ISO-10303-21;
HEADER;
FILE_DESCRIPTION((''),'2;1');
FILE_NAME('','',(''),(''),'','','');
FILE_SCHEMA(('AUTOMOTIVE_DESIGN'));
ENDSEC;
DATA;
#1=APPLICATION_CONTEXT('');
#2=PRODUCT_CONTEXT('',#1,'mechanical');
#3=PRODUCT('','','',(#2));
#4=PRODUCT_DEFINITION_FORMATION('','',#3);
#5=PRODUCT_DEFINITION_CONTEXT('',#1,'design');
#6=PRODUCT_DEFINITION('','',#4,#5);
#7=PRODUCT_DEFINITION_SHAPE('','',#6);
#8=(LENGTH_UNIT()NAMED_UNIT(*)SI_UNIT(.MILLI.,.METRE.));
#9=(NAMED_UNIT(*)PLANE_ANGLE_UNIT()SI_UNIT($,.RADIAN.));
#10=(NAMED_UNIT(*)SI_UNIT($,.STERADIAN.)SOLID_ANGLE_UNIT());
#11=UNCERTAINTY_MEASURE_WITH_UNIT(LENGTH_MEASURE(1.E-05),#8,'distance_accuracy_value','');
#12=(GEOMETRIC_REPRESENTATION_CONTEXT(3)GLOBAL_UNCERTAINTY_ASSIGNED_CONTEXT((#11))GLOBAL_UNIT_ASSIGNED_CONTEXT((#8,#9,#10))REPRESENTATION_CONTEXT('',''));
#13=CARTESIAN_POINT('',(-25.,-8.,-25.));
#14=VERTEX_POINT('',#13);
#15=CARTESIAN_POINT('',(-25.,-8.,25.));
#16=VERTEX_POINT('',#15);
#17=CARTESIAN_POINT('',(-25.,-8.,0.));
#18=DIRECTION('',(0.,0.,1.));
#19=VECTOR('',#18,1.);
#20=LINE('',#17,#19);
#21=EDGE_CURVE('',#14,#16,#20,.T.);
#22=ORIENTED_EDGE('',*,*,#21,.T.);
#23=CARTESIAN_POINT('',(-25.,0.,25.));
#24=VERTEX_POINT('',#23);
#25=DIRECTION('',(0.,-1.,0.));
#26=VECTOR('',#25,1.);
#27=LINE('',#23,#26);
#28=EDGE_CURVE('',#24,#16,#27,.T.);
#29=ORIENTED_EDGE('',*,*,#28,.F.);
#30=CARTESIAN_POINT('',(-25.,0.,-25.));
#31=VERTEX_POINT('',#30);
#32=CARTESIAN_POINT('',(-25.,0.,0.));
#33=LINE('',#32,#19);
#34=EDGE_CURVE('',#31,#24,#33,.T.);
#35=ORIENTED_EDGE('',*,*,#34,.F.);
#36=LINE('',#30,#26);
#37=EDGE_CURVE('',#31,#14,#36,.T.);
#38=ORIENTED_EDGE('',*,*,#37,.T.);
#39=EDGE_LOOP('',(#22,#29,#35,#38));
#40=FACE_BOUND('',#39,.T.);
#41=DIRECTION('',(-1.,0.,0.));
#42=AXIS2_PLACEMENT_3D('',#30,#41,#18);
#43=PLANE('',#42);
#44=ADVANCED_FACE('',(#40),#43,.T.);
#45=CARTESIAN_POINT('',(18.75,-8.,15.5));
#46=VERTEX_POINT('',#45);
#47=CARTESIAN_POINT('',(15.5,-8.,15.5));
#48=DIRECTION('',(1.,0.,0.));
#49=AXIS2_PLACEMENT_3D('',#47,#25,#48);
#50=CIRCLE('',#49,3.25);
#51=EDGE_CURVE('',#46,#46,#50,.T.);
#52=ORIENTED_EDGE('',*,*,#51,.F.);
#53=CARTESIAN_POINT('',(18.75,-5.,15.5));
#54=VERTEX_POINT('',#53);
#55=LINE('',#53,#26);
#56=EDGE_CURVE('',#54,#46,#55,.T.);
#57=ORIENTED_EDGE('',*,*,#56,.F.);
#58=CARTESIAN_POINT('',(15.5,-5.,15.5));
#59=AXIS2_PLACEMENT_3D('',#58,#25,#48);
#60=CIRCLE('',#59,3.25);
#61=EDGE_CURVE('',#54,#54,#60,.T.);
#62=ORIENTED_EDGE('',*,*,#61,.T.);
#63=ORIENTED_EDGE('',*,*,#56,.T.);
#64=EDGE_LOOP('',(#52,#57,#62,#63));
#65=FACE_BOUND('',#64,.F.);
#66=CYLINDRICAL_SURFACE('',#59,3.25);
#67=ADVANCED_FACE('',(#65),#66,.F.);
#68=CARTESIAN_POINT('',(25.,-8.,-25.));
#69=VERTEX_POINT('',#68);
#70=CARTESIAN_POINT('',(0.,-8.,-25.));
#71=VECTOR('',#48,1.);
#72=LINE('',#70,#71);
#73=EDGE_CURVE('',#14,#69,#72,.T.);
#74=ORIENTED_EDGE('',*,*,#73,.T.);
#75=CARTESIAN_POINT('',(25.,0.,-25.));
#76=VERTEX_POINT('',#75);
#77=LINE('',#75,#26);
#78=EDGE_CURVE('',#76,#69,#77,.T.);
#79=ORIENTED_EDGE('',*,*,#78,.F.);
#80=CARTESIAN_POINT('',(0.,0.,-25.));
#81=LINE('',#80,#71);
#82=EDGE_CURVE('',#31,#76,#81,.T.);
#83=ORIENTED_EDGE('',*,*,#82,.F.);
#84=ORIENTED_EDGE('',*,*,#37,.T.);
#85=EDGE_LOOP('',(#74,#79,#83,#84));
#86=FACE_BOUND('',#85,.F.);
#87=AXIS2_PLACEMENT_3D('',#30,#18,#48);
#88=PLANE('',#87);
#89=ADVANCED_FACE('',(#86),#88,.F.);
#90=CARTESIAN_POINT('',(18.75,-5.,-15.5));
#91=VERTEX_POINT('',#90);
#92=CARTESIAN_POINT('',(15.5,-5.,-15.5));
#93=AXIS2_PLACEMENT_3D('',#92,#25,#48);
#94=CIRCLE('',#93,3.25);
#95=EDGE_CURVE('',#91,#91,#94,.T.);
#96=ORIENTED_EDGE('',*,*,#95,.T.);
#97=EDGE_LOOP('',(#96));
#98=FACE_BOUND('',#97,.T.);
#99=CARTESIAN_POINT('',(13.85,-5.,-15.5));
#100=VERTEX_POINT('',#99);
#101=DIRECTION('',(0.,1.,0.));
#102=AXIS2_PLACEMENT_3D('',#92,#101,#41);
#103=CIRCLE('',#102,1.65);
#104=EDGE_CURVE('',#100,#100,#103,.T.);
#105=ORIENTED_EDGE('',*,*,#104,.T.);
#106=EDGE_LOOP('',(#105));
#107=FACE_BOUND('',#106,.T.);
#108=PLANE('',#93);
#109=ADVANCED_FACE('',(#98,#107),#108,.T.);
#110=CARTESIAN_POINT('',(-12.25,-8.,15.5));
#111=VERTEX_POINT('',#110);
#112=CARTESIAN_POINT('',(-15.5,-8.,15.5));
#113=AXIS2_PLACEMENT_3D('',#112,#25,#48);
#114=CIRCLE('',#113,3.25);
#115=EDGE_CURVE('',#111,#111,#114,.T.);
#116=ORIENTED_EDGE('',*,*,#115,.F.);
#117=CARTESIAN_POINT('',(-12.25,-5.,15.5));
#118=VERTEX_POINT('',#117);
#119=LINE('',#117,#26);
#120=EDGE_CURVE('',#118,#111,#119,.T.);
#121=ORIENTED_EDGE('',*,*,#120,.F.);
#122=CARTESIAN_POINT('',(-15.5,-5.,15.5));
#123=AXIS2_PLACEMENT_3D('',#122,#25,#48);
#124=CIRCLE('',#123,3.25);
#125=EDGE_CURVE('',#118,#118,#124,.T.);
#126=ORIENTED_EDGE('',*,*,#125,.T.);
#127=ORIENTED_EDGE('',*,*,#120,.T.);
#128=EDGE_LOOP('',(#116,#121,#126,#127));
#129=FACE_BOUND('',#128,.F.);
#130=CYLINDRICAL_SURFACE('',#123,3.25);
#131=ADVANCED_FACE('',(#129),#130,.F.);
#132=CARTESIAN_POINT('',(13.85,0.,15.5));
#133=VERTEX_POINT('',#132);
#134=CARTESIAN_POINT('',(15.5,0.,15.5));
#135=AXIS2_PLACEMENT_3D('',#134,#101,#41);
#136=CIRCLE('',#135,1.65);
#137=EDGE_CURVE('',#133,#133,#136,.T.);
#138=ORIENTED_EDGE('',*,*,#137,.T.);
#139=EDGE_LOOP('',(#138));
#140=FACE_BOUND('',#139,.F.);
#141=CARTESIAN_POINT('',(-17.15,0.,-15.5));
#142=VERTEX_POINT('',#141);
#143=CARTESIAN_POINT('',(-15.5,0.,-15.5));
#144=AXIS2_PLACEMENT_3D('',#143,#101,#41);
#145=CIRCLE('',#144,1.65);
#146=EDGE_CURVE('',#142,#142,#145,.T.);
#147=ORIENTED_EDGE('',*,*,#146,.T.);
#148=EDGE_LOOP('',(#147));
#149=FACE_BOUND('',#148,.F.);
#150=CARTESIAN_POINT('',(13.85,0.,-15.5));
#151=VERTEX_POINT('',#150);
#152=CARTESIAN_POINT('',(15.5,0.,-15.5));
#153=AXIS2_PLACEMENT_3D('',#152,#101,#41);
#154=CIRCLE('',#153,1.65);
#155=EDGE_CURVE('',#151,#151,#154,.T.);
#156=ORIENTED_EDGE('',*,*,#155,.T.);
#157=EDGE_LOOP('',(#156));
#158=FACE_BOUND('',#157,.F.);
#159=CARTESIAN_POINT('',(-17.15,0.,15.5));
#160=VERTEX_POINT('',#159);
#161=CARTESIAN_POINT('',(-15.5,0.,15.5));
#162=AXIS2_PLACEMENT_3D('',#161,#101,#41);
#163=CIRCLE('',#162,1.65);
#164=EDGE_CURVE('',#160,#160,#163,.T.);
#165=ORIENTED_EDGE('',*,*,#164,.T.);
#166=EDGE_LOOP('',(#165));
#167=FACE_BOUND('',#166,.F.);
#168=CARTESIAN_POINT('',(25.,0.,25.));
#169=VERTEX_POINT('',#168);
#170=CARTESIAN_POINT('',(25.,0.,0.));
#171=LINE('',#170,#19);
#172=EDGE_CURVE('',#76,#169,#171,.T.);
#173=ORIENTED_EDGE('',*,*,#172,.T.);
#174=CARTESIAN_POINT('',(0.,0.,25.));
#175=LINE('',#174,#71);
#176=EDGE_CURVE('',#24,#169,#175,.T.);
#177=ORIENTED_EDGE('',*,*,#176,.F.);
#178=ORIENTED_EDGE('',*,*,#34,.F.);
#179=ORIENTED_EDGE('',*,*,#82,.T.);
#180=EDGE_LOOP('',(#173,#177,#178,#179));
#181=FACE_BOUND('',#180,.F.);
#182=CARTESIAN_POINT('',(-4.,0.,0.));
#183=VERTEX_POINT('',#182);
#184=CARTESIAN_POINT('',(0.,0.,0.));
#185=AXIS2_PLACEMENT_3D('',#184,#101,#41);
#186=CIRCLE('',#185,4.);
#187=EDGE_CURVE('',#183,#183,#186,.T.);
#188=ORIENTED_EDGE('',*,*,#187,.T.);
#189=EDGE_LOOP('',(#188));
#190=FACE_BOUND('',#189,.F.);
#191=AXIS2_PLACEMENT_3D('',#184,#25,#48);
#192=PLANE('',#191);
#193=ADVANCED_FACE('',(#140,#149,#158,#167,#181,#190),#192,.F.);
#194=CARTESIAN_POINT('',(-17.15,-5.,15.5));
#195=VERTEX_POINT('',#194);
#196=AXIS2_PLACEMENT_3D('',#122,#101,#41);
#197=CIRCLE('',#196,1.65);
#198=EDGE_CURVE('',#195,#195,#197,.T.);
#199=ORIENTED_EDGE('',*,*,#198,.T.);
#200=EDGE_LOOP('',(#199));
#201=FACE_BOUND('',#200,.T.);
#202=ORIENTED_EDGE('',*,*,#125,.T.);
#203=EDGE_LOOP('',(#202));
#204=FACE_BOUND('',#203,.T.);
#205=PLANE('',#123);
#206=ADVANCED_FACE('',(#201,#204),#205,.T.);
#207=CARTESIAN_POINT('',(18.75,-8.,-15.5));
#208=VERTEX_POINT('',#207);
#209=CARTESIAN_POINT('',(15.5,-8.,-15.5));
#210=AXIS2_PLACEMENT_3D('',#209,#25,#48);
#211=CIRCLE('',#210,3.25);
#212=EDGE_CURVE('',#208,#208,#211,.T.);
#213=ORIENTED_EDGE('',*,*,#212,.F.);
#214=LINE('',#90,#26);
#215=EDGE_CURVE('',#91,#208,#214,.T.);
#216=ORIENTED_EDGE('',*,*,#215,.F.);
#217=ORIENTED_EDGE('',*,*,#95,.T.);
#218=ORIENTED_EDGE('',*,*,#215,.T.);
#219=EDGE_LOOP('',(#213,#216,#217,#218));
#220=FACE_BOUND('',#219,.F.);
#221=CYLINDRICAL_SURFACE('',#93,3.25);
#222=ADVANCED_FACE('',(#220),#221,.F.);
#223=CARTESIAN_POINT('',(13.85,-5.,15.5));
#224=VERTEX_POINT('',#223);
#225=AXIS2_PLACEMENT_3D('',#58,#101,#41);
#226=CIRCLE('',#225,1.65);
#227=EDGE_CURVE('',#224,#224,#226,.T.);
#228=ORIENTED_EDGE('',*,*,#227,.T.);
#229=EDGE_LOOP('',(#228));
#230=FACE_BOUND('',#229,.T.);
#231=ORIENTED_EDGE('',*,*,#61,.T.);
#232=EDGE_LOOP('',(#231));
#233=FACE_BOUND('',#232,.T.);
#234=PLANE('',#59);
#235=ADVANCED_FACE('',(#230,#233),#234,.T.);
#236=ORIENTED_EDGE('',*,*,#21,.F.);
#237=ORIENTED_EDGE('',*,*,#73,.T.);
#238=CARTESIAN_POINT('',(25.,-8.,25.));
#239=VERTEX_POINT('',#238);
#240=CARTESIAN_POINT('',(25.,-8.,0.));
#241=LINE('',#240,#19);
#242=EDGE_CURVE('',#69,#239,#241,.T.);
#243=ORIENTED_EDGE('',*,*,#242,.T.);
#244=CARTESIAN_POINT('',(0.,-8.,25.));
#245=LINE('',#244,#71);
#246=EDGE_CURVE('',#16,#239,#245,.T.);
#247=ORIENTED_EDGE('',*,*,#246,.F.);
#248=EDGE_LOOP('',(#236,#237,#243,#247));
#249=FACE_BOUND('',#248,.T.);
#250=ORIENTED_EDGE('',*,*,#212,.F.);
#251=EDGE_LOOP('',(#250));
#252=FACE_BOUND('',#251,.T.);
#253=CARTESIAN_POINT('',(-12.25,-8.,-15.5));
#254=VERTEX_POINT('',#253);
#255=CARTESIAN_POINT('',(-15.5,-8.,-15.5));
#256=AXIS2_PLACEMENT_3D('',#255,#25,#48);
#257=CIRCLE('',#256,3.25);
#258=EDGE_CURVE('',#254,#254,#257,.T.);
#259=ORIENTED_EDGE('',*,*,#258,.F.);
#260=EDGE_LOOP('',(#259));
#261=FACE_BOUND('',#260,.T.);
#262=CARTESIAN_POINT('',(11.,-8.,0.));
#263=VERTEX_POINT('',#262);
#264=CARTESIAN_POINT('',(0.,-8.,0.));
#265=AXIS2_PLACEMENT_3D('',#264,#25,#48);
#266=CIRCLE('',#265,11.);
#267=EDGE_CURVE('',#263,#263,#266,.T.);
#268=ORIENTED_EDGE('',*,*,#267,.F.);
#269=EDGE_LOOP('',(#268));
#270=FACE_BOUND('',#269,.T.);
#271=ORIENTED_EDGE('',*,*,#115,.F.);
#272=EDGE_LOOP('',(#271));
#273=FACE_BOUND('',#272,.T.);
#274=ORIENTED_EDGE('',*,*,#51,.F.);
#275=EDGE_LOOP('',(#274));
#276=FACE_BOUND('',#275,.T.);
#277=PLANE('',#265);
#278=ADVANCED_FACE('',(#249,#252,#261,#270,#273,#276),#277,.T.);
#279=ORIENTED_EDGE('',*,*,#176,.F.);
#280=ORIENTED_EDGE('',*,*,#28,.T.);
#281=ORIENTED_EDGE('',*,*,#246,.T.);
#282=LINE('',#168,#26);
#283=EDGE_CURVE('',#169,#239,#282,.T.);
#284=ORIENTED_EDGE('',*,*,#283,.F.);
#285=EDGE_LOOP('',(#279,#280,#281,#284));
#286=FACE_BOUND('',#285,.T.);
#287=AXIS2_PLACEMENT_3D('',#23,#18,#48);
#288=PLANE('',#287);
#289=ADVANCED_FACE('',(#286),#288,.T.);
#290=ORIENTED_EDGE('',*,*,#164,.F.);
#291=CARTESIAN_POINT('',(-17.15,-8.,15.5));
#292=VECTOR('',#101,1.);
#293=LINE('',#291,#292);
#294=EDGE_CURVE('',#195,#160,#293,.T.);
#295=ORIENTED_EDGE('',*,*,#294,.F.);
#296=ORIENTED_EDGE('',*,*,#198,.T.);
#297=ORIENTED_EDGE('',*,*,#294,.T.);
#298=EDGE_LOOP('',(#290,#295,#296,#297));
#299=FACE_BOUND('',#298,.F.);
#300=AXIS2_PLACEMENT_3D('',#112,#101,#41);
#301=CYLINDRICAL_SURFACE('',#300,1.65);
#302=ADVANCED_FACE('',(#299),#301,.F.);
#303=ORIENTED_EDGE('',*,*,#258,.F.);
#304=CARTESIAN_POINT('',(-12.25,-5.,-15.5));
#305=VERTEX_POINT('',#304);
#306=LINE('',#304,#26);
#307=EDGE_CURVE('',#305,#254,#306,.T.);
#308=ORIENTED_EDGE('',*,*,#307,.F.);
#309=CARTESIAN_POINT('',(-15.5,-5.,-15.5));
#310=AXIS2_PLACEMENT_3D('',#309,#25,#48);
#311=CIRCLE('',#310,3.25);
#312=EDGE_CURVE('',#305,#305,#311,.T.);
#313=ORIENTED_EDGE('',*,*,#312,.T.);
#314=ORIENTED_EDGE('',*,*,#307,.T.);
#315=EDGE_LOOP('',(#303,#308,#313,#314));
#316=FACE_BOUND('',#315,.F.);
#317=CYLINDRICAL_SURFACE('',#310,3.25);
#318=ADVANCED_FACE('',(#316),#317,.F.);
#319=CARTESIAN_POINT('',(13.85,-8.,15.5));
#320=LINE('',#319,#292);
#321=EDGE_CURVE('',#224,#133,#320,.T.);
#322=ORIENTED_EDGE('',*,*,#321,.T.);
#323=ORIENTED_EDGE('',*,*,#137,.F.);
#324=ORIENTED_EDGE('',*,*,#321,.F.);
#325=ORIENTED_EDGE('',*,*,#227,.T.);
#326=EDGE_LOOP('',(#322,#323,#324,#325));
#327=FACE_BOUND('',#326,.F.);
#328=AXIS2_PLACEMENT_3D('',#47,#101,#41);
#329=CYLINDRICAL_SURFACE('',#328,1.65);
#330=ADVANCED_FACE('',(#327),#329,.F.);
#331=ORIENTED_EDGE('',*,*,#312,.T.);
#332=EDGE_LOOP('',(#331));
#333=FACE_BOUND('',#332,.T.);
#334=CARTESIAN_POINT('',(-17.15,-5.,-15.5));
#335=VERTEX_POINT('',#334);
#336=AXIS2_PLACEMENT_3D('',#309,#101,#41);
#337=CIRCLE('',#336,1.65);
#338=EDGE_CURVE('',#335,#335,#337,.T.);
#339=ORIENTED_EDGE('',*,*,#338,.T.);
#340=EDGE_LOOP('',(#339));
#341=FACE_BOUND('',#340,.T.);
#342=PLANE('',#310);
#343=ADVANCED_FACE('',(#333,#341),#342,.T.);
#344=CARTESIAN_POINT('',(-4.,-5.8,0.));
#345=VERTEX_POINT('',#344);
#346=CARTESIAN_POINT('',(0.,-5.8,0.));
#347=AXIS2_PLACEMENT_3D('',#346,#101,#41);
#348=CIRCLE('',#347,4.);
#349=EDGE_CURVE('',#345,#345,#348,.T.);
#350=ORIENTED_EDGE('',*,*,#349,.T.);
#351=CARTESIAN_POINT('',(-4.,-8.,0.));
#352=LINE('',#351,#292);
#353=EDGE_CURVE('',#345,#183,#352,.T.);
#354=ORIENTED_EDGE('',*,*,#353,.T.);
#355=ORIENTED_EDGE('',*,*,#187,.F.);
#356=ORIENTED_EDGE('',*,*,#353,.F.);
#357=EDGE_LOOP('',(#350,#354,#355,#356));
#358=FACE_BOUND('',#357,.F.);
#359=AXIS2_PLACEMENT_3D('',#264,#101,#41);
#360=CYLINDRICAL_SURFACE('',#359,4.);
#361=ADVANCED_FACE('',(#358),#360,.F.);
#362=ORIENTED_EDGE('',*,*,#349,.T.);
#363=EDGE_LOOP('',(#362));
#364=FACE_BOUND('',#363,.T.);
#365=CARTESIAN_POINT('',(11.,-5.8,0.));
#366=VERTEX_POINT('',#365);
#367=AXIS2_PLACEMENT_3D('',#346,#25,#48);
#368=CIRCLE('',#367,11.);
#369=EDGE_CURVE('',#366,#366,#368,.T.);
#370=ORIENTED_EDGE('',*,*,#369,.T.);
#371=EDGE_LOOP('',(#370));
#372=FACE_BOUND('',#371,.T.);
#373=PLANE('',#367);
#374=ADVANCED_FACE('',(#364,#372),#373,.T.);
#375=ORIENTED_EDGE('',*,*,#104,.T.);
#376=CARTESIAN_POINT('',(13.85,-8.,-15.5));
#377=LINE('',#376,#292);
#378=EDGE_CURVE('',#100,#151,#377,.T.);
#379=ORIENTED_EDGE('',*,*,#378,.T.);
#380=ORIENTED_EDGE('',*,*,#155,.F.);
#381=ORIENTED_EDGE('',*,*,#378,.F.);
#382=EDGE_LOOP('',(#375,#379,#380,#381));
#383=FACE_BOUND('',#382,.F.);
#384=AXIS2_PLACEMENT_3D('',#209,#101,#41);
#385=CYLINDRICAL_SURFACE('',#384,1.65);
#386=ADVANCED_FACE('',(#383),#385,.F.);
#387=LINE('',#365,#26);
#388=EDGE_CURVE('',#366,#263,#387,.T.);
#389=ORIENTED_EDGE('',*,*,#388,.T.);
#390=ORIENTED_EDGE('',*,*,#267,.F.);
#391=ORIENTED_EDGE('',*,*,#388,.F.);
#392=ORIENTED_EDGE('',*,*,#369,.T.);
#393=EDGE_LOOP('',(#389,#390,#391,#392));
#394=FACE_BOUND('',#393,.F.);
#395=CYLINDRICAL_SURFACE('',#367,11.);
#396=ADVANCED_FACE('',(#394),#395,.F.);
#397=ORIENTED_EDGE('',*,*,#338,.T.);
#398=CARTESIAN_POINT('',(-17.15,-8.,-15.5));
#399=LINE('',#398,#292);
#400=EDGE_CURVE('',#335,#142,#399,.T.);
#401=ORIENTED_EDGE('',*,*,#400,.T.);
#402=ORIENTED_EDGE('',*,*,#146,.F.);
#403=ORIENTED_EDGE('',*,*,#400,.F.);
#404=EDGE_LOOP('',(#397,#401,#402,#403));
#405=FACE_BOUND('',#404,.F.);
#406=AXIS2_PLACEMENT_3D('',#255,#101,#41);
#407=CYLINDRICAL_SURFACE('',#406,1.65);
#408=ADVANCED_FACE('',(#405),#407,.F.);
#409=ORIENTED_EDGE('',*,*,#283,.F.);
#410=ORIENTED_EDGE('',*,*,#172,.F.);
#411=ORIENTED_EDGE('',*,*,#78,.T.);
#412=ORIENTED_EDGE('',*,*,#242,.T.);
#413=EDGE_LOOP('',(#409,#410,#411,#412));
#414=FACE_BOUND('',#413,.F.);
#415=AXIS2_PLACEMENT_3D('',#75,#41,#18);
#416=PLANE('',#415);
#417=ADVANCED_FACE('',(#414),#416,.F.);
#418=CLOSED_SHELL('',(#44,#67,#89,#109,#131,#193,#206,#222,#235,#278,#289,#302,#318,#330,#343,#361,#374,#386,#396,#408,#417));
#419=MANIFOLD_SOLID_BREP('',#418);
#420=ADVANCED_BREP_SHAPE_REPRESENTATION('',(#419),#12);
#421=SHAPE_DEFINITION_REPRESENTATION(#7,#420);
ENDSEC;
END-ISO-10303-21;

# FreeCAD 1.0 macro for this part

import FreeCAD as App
import Part
import Sketcher
from FreeCAD import Vector
Q = App.Units.Quantity

doc = App.newDocument("Part")
body = doc.addObject("PartDesign::Body", "Body")

sketch1 = body.newObject("Sketcher::SketchObject", "Sketch")
sketch1.AttachmentSupport = (doc.getObject("XZ_Plane"), [""])
sketch1.MapMode = "FlatFace"
sketch1.addGeometry([
    Part.LineSegment(Vector(-25, 25, 0), Vector(-25, -25, 0)),
    Part.LineSegment(Vector(-25, -25, 0), Vector(25, -25, 0)),
    Part.LineSegment(Vector(25, -25, 0), Vector(25, 25, 0)),
    Part.LineSegment(Vector(25, 25, 0), Vector(-25, 25, 0)),
], False)
sketch1.addConstraint([
    Sketcher.Constraint("Coincident", 0, 2, 1, 1),
    Sketcher.Constraint("Coincident", 1, 2, 2, 1),
    Sketcher.Constraint("Coincident", 2, 2, 3, 1),
    Sketcher.Constraint("Coincident", 3, 2, 0, 1),
    Sketcher.Constraint("Vertical", 0),
    Sketcher.Constraint("Horizontal", 1),
    Sketcher.Constraint("Vertical", 2),
    Sketcher.Constraint("Horizontal", 3),
    Sketcher.Constraint("Symmetric", 0, 2, 2, 2, -1, 1),
    Sketcher.Constraint("Equal", 3, 0),
    Sketcher.Constraint("DistanceX", 1, 1, 1, 2, Q("50 mm")),
])
pad1 = body.newObject("PartDesign::Pad", "Pad")
pad1.Profile = sketch1
pad1.Length = 8

sketch2 = body.newObject("Sketcher::SketchObject", "Sketch001")
sketch2.AttachmentSupport = (doc.getObject("XZ_Plane"), [""])
sketch2.MapMode = "FlatFace"
sketch2.AttachmentOffset = App.Placement(Vector(0, 0, 8), App.Rotation())
sketch2.addGeometry(Part.Circle(Vector(0, 0, 0), Vector(0, 0, 1), 4), False)
sketch2.addConstraint([
    Sketcher.Constraint("Coincident", 0, 3, -1, 1),
    Sketcher.Constraint("Diameter", 0, Q("8 mm")),
])
doc.recompute()
hole = body.newObject("PartDesign::Hole", "Hole")
hole.Profile = sketch2
hole.ThreadType = "None"
hole.Diameter = 8
hole.DepthType = "ThroughAll"
hole.HoleCutType = "Counterbore"
hole.HoleCutDiameter = 22
hole.HoleCutDepth = 2.2

sketch3 = body.newObject("Sketcher::SketchObject", "Sketch002")
sketch3.AttachmentSupport = (doc.getObject("XZ_Plane"), [""])
sketch3.MapMode = "FlatFace"
sketch3.AttachmentOffset = App.Placement(Vector(0, 0, 8), App.Rotation())
sketch3.addGeometry([
    Part.Circle(Vector(15.5, 15.5, 0), Vector(0, 0, 1), 1.6),
    Part.Circle(Vector(-15.5, 15.5, 0), Vector(0, 0, 1), 1.6),
    Part.Circle(Vector(-15.5, -15.5, 0), Vector(0, 0, 1), 1.6),
    Part.Circle(Vector(15.5, -15.5, 0), Vector(0, 0, 1), 1.6),
], False)
sketch3.addConstraint([
    Sketcher.Constraint("Equal", 0, 1),
    Sketcher.Constraint("Equal", 1, 2),
    Sketcher.Constraint("Equal", 2, 3),
    Sketcher.Constraint("Symmetric", 0, 3, 2, 3, -1, 1),
    Sketcher.Constraint("Symmetric", 1, 3, 3, 3, -1, 1),
    Sketcher.Constraint("Symmetric", 0, 3, 1, 3, -2),
    Sketcher.Constraint("Diameter", 0, Q("3.3 mm")),
    Sketcher.Constraint("DistanceX", 1, 3, 0, 3, Q("31 mm")),
    Sketcher.Constraint("DistanceY", 2, 3, 1, 3, Q("31 mm")),
])
doc.recompute()
hole2 = body.newObject("PartDesign::Hole", "Hole001")
hole2.Profile = sketch3
hole2.ThreadType = "None"
hole2.Diameter = 3.3
hole2.DepthType = "ThroughAll"
hole2.HoleCutType = "Counterbore"
hole2.HoleCutDiameter = 6.5
hole2.HoleCutDepth = 3

doc.recompute()
